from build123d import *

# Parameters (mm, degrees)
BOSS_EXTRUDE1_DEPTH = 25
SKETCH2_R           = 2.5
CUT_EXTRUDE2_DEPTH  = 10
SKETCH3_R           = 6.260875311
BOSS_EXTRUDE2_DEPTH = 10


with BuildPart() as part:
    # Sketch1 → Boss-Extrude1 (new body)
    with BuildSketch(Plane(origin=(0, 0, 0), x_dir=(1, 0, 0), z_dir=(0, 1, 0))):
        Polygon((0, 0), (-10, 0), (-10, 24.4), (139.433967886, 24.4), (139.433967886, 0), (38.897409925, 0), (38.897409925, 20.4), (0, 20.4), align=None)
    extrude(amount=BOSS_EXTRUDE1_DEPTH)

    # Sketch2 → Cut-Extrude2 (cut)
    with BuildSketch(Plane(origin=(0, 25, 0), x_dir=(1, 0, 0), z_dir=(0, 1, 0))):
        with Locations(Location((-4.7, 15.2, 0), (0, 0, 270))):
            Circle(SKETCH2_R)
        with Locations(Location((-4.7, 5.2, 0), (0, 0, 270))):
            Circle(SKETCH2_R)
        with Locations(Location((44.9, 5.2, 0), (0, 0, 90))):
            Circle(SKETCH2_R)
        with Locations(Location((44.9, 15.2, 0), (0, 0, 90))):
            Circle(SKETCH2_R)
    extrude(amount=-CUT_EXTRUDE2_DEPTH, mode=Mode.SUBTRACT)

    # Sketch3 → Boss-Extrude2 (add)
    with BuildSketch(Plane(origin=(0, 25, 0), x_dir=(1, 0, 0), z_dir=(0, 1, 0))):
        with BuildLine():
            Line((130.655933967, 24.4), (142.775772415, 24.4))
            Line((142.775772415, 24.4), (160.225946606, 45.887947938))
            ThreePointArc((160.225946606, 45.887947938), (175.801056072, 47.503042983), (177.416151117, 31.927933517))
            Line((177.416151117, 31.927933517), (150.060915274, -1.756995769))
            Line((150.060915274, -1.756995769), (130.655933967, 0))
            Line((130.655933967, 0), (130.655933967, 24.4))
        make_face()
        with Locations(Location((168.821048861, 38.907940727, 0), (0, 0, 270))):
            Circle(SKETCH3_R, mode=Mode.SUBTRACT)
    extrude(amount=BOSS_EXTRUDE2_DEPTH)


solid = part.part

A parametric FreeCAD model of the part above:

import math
import FreeCAD as App
import Part
import Sketcher
from FreeCAD import Vector
Q = App.Units.Quantity

doc = App.newDocument("Part")
body = doc.addObject("PartDesign::Body", "Body")

# Sketch on XZ plane
sketch1 = body.newObject("Sketcher::SketchObject", "Sketch")
sketch1.AttachmentSupport = (doc.getObject("XZ_Plane"), [""])
sketch1.MapMode = "FlatFace"
sketch1.addGeometry([
    Part.LineSegment(Vector(-10, 0, 0), Vector(0, 0, 0)),  # 0
    Part.LineSegment(Vector(0, 0, 0), Vector(0, -20, 0)),  # 1
    Part.LineSegment(Vector(0, -20, 0), Vector(39, -20, 0)),  # 2
    Part.LineSegment(Vector(39, -20, 0), Vector(39, 0, 0)),  # 3
    Part.LineSegment(Vector(39, 0, 0), Vector(139, 0, 0)),  # 4
    Part.LineSegment(Vector(139, 0, 0), Vector(139, -24, 0)),  # 5
    Part.LineSegment(Vector(139, -24, 0), Vector(-10, -24, 0)),  # 6
    Part.LineSegment(Vector(-10, -24, 0), Vector(-10, 0, 0)),  # 7
], False)
sketch1.addConstraint([
    Sketcher.Constraint("Coincident", 0, 2, 1, 1),
    Sketcher.Constraint("Coincident", 1, 2, 2, 1),
    Sketcher.Constraint("Coincident", 2, 2, 3, 1),
    Sketcher.Constraint("Coincident", 3, 2, 4, 1),
    Sketcher.Constraint("Coincident", 4, 2, 5, 1),
    Sketcher.Constraint("Coincident", 5, 2, 6, 1),
    Sketcher.Constraint("Coincident", 6, 2, 7, 1),
    Sketcher.Constraint("Coincident", 7, 2, 0, 1),
    Sketcher.Constraint("Horizontal", 0),
    Sketcher.Constraint("Vertical", 1),
    Sketcher.Constraint("Horizontal", 2),
    Sketcher.Constraint("Vertical", 3),
    Sketcher.Constraint("Horizontal", 4),
    Sketcher.Constraint("Vertical", 5),
    Sketcher.Constraint("Horizontal", 6),
    Sketcher.Constraint("Vertical", 7),
    Sketcher.Constraint("Coincident", 0, 2, -1, 1),
    Sketcher.Constraint("PointOnObject", 3, 2, -1),
    Sketcher.Constraint("DistanceX", 0, 1, 0, 2, Q("10 mm")),
    Sketcher.Constraint("DistanceY", 1, 2, 1, 1, Q("20.4 mm")),
    Sketcher.Constraint("DistanceY", 5, 2, 5, 1, Q("24.4 mm")),
    Sketcher.Constraint("DistanceX", 2, 1, 2, 2, Q("38.89741 mm")),
    Sketcher.Constraint("DistanceX", 4, 1, 4, 2, Q("100.536558 mm")),
])
pad1 = body.newObject("PartDesign::Pad", "Pad")
pad1.Profile = sketch1
pad1.Length = 25
pad1.Reversed = True

# Sketch on XZ plane
sketch2 = body.newObject("Sketcher::SketchObject", "Sketch001")
sketch2.AttachmentSupport = (doc.getObject("XZ_Plane"), [""])
sketch2.MapMode = "FlatFace"
sketch2.AttachmentOffset = App.Placement(Vector(0, 0, -25), App.Rotation())
sketch2.addGeometry([
    Part.Circle(Vector(-4.7, -15.2, 0), Vector(0, 0, 1), 2.5),
    Part.Circle(Vector(-4.7, -5.2, 0), Vector(0, 0, 1), 2.5),
    Part.Circle(Vector(44.9, -5.2, 0), Vector(0, 0, 1), 2.5),
    Part.Circle(Vector(44.9, -15.2, 0), Vector(0, 0, 1), 2.5),
], False)
sketch2.addConstraint([
    Sketcher.Constraint("Equal", 0, 1),
    Sketcher.Constraint("Equal", 1, 2),
    Sketcher.Constraint("Equal", 2, 3),
    Sketcher.Constraint("Horizontal", 1, 3, 2, 3),
    Sketcher.Constraint("Horizontal", 0, 3, 3, 3),
    Sketcher.Constraint("Vertical", 0, 3, 1, 3),
    Sketcher.Constraint("Vertical", 2, 3, 3, 3),
    Sketcher.Constraint("Diameter", 0, Q("5 mm")),
    Sketcher.Constraint("DistanceY", 0, 3, 1, 3, Q("10 mm")),
    Sketcher.Constraint("DistanceX", 0, 3, -1, 1, Q("4.7 mm")),
    Sketcher.Constraint("DistanceY", 0, 3, -1, 1, Q("15.2 mm")),
    Sketcher.Constraint("DistanceX", -1, 1, 2, 3, Q("44.9 mm")),
])
pocket1 = body.newObject("PartDesign::Pocket", "Pocket")
pocket1.Profile = sketch2
pocket1.Length = 10
pocket1.Reversed = True

# Sketch on XZ plane
sketch3 = body.newObject("Sketcher::SketchObject", "Sketch002")
sketch3.AttachmentSupport = (doc.getObject("XZ_Plane"), [""])
sketch3.MapMode = "FlatFace"
sketch3.AttachmentOffset = App.Placement(Vector(0, 0, -25), App.Rotation())
sketch3.addGeometry([
    Part.LineSegment(Vector(143, -24, 0), Vector(131, -24, 0)),  # 0
    Part.LineSegment(Vector(131, -24, 0), Vector(131, 0, 0)),  # 1
    Part.LineSegment(Vector(131, 0, 0), Vector(150, 2, 0)),  # 2
    Part.LineSegment(Vector(150, 2, 0), Vector(177, -32, 0)),  # 3
    Part.ArcOfCircle(Part.Circle(Vector(169, -39, 0), Vector(0, 0, 1), 11), math.radians(-141), math.radians(39)),  # 4
    Part.LineSegment(Vector(160, -46, 0), Vector(143, -24, 0)),  # 5
    Part.Circle(Vector(169, -39, 0), Vector(0, 0, 1), 6),  # 6
], False)
sketch3.addConstraint([
    Sketcher.Constraint("Coincident", 0, 2, 1, 1),
    Sketcher.Constraint("Coincident", 1, 2, 2, 1),
    Sketcher.Constraint("Coincident", 2, 2, 3, 1),
    Sketcher.Constraint("Tangent", 3, 2, 4, 2),
    Sketcher.Constraint("Tangent", 4, 1, 5, 1),
    Sketcher.Constraint("Coincident", 5, 2, 0, 1),
    Sketcher.Constraint("Horizontal", 0),
    Sketcher.Constraint("Vertical", 1),
    Sketcher.Constraint("Coincident", 6, 3, 4, 3),
    Sketcher.Constraint("PointOnObject", 1, 2, -1),
    Sketcher.Constraint("Parallel", 3, 5),
    Sketcher.Constraint("DistanceY", 1, 1, 1, 2, Q("24.4 mm")),
    Sketcher.Constraint("Diameter", 6, Q("12.521751 mm")),
    Sketcher.Constraint("Radius", 4, Q("11.072321 mm")),
    Sketcher.Constraint("DistanceX", 0, 2, 0, 1, Q("12.119838 mm")),
    Sketcher.Constraint("Distance", 2, Q("19.484361 mm")),
    Sketcher.Constraint("Distance", 5, Q("27.681049 mm")),
    Sketcher.Constraint("DistanceX", -1, 1, 4, 3, Q("168.821049 mm")),
    Sketcher.Constraint("DistanceY", 4, 3, -1, 1, Q("38.907941 mm")),
])
pad2 = body.newObject("PartDesign::Pad", "Pad001")
pad2.Profile = sketch3
pad2.Length = 10
pad2.Reversed = True

doc.recompute()
